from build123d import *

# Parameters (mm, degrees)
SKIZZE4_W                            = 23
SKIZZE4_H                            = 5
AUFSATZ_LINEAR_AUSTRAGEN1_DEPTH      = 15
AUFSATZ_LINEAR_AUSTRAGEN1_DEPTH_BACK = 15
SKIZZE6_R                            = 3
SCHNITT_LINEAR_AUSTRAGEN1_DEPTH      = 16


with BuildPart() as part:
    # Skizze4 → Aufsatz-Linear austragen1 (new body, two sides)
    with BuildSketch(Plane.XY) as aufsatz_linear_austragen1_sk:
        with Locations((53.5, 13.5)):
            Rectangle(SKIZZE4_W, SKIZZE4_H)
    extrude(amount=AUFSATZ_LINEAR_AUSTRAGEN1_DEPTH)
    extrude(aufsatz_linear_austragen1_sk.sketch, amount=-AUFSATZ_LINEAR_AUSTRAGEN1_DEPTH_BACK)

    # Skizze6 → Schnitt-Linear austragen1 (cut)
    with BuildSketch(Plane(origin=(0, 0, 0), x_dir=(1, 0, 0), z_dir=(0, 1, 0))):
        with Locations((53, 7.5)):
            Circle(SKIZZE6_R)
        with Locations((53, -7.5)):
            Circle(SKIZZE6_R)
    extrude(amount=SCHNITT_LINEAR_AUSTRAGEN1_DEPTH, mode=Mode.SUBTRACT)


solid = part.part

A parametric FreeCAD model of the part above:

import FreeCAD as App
import Part
import Sketcher
from FreeCAD import Vector

doc = App.newDocument("Part")
body = doc.addObject("PartDesign::Body", "Body")

# Sketch on XY plane
sketch1 = body.newObject("Sketcher::SketchObject", "Sketch")
sketch1.AttachmentSupport = (doc.getObject("XY_Plane"), [""])
sketch1.MapMode = "FlatFace"
sketch1.addGeometry([
    Part.LineSegment(Vector(42, 16, 0), Vector(42, 11, 0)),
    Part.LineSegment(Vector(42, 11, 0), Vector(65, 11, 0)),
    Part.LineSegment(Vector(65, 11, 0), Vector(65, 16, 0)),
    Part.LineSegment(Vector(65, 16, 0), Vector(42, 16, 0)),
], False)
sketch1.addConstraint([
    Sketcher.Constraint("Coincident", 0, 2, 1, 1),
    Sketcher.Constraint("Coincident", 1, 2, 2, 1),
    Sketcher.Constraint("Coincident", 2, 2, 3, 1),
    Sketcher.Constraint("Coincident", 3, 2, 0, 1),
    Sketcher.Constraint("Vertical", 0),
    Sketcher.Constraint("Horizontal", 1),
    Sketcher.Constraint("Vertical", 2),
    Sketcher.Constraint("Horizontal", 3),
    Sketcher.Constraint("DistanceX", 1, 1, 1, 2, 23.0),
    Sketcher.Constraint("DistanceY", 0, 2, 0, 1, 5.0),
    Sketcher.Constraint("DistanceX", -1, 1, 0, 2, 42.0),
    Sketcher.Constraint("DistanceY", -1, 1, 0, 2, 11.0),
])
pad1 = body.newObject("PartDesign::Pad", "Pad")
pad1.Profile = sketch1
pad1.Type = "TwoLengths"
pad1.Length = 15
pad1.Length2 = 15

# Sketch on XZ plane
sketch2 = body.newObject("Sketcher::SketchObject", "Sketch001")
sketch2.AttachmentSupport = (doc.getObject("XZ_Plane"), [""])
sketch2.MapMode = "FlatFace"
sketch2.addGeometry([
    Part.Circle(Vector(53, -7.5, 0), Vector(0, 0, 1), 3),
    Part.Circle(Vector(53, 7.5, 0), Vector(0, 0, 1), 3),
], False)
sketch2.addConstraint([
    Sketcher.Constraint("Equal", 0, 1),
    Sketcher.Constraint("Symmetric", 0, 3, 1, 3, -1),
    Sketcher.Constraint("Diameter", 0, 6.0),
    Sketcher.Constraint("DistanceX", -1, 1, 0, 3, 53.0),
    Sketcher.Constraint("DistanceY", 0, 3, 1, 3, 15.0),
])
pocket1 = body.newObject("PartDesign::Pocket", "Pocket")
pocket1.Profile = sketch2
pocket1.Length = 16

doc.recompute()
